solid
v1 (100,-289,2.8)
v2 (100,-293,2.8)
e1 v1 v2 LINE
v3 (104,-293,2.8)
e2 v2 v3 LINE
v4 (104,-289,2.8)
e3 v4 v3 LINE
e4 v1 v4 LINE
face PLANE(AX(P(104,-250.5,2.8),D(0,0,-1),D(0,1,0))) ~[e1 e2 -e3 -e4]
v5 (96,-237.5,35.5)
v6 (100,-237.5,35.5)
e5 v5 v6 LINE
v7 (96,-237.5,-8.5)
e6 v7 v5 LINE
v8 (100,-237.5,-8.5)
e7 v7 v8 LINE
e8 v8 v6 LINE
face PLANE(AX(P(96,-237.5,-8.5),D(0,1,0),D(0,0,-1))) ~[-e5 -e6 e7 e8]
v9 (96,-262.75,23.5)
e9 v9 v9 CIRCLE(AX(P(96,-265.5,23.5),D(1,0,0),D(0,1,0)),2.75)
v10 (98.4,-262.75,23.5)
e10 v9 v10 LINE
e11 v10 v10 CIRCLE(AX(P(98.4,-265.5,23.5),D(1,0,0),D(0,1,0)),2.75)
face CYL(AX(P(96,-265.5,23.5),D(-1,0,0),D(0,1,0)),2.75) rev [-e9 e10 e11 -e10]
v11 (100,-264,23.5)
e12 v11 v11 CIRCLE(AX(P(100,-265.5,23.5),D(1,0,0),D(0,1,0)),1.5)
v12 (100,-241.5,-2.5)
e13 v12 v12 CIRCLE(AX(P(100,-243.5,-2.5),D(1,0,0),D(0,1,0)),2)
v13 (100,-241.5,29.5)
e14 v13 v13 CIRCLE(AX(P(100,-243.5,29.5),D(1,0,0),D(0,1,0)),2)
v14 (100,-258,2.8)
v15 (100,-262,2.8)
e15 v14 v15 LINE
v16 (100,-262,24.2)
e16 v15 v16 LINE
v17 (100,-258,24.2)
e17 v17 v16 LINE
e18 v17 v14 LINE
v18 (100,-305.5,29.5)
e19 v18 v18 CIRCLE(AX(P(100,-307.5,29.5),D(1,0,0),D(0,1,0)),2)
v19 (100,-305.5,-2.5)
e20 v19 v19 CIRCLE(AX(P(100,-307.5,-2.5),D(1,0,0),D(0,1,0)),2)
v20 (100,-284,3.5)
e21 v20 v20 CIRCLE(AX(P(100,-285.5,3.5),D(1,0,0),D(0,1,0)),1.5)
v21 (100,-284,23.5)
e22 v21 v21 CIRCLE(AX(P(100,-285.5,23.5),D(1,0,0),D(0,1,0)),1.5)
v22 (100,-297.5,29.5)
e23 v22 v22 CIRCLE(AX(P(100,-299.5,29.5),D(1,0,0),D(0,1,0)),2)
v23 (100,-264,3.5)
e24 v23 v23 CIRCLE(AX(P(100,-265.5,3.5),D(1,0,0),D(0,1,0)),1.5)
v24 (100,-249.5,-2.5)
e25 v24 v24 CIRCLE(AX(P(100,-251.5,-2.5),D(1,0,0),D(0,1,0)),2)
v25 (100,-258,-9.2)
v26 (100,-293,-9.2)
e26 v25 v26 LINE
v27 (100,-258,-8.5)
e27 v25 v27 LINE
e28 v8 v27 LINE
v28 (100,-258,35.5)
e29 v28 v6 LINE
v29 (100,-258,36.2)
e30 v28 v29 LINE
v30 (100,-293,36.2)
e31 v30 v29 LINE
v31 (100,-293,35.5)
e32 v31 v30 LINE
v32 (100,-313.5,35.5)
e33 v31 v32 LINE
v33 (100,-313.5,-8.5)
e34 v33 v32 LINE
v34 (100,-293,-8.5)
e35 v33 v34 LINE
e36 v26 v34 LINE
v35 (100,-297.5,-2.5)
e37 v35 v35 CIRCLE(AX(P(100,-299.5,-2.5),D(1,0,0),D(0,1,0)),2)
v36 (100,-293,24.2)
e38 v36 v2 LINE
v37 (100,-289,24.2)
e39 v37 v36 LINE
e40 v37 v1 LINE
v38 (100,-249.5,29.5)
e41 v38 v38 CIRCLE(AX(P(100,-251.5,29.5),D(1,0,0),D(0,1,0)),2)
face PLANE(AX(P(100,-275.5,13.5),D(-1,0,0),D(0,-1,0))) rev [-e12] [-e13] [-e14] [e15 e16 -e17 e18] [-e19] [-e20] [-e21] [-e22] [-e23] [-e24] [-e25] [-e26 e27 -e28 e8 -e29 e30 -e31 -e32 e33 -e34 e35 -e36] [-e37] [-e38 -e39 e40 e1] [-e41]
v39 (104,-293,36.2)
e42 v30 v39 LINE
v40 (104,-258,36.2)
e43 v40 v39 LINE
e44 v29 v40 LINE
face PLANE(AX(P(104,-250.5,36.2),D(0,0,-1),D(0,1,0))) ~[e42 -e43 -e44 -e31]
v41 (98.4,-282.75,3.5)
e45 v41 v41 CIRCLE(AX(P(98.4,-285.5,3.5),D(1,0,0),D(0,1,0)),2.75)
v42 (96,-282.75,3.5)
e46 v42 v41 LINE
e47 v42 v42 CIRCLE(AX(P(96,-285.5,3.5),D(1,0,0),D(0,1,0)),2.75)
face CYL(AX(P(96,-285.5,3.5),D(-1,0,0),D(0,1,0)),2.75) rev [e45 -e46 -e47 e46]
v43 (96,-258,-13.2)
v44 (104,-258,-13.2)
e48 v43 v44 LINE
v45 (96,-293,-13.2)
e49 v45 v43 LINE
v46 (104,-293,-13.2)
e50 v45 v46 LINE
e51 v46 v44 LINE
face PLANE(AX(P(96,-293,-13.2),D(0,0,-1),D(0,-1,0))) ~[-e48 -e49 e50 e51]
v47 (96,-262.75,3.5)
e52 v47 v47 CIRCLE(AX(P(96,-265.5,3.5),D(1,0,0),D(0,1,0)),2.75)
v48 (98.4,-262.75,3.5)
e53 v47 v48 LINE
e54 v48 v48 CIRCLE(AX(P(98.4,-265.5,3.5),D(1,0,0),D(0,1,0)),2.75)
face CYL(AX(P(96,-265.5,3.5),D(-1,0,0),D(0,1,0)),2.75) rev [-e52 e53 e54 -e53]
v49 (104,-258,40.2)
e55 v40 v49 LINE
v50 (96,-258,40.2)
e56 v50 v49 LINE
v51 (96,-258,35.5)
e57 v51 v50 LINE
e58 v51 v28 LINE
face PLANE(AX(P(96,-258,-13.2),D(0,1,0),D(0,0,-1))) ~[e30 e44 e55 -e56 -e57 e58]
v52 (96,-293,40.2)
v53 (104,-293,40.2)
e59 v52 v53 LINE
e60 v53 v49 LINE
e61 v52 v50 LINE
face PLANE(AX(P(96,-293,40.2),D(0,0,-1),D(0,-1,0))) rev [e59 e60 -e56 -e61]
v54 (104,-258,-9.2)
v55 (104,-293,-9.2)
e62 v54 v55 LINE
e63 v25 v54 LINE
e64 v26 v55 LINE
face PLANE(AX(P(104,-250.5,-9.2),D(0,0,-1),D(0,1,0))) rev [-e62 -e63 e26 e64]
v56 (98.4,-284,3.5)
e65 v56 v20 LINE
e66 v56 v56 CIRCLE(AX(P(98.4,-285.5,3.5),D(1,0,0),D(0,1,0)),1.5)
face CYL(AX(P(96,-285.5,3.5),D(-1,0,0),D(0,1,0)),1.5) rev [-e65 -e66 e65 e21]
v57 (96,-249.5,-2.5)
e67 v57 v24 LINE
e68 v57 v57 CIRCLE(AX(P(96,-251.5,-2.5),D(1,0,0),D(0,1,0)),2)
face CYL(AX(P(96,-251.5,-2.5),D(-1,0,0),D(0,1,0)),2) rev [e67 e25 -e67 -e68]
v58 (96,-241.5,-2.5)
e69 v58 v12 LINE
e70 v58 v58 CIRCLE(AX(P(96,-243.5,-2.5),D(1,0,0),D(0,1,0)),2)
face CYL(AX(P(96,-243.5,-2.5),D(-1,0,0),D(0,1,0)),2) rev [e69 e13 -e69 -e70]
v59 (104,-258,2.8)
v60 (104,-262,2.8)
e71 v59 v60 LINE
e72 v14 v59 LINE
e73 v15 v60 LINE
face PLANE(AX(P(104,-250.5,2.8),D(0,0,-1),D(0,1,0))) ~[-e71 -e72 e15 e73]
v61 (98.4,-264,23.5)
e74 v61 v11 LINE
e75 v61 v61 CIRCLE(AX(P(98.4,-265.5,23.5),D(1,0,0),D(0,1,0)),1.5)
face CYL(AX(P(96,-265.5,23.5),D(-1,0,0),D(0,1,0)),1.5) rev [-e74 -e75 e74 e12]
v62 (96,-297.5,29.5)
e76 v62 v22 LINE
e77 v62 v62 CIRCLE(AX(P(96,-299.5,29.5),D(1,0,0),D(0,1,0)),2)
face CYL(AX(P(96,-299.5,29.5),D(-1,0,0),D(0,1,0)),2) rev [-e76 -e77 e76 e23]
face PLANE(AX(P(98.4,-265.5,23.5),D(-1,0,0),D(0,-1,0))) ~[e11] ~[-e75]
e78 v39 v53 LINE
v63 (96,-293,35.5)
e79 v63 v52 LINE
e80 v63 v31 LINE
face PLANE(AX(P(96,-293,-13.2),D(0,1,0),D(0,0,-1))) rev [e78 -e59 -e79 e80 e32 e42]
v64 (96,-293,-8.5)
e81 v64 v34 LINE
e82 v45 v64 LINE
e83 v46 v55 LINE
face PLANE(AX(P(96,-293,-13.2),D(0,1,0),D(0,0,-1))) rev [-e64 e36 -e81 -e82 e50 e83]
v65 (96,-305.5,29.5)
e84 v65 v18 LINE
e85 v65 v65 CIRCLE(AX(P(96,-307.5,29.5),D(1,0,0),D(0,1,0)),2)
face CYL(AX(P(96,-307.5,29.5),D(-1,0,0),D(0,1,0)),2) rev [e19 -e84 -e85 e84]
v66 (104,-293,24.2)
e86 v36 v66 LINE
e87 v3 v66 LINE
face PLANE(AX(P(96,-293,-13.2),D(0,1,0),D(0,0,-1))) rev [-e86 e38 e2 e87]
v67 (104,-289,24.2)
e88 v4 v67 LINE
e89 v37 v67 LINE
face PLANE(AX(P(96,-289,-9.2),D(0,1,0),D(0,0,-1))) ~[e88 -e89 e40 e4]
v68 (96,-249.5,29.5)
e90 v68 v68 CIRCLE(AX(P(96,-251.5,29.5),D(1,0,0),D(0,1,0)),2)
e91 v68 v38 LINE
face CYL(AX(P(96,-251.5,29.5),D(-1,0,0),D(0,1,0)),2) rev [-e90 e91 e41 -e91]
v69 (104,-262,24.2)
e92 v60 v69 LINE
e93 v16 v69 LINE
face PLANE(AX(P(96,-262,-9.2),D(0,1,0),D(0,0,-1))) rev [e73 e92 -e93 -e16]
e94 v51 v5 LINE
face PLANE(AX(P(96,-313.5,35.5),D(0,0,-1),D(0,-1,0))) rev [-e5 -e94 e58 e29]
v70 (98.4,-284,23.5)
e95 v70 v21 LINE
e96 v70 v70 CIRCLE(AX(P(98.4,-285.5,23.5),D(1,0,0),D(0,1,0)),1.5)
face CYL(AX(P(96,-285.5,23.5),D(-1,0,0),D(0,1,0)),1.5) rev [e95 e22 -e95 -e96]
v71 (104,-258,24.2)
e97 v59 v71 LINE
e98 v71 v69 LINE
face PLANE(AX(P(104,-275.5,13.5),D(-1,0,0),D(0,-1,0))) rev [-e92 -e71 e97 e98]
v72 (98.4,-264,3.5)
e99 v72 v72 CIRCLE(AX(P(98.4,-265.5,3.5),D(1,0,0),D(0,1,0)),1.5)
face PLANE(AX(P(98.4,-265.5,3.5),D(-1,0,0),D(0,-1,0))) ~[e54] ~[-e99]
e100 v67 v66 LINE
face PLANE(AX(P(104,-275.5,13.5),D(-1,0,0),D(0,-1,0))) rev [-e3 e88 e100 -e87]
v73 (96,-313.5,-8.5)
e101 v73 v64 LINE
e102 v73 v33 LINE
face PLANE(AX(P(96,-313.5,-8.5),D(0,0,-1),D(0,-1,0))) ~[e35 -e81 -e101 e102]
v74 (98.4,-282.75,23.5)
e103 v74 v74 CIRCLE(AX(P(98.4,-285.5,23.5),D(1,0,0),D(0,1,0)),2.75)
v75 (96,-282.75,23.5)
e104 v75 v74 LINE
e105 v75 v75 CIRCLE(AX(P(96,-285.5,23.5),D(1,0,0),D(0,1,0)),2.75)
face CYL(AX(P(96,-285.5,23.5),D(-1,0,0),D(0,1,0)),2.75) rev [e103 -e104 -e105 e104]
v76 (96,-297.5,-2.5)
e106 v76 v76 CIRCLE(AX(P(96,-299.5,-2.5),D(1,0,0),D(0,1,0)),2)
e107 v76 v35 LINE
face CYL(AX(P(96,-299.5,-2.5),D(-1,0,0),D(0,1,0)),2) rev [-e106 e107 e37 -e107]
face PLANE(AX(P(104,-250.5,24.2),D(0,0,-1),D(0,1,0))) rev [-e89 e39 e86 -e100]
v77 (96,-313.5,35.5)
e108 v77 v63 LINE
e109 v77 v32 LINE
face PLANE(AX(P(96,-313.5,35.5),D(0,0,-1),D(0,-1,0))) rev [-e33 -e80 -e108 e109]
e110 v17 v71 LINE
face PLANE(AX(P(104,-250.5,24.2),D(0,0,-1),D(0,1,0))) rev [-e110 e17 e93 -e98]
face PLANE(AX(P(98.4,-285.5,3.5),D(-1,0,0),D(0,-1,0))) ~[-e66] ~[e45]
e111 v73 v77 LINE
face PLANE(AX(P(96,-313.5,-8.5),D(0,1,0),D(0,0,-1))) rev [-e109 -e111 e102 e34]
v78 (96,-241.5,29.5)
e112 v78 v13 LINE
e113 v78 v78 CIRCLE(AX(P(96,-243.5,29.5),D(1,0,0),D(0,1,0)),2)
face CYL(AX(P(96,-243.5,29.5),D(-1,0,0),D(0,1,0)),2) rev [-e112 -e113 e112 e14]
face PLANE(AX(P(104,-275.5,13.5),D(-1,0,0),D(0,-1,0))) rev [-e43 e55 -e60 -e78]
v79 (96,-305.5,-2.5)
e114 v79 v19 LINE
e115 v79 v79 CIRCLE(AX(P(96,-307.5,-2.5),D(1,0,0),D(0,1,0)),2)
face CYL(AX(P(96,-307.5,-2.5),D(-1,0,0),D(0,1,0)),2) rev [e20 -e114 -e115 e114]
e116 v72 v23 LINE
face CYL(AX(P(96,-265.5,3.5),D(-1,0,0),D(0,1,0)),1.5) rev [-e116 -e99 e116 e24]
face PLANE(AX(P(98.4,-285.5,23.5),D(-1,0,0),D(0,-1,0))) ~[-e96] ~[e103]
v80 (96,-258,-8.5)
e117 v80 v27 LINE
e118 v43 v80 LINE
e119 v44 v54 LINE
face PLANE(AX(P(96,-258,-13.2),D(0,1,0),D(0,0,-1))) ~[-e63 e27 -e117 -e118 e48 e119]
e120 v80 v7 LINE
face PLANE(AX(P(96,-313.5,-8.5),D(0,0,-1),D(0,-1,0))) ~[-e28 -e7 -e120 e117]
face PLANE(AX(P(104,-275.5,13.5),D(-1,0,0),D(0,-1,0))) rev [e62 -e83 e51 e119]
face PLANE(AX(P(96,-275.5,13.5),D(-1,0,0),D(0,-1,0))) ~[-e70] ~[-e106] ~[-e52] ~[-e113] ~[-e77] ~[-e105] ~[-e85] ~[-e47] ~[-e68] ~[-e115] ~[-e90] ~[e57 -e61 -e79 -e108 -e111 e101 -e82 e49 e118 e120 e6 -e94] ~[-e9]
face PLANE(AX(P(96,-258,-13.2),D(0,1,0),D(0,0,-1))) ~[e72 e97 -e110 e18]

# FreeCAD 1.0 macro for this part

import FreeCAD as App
import Part
import Sketcher

V = App.Vector

doc = App.newDocument("Part")
params = doc.addObject("Spreadsheet::Sheet", "Params")
for row, (alias, value) in enumerate([
    ("sketch1_width", "4 mm"),
    ("sketch1_height", "27 mm"),
    ("pad1_length", "45.4 mm"),
    ("sketch2_diameter", "3 mm"),
    ("pocket1_length", "5 mm"),
    ("sketch3_diameter", "5.5 mm"),
    ("pocket2_length", "2.4 mm"),
    ("sketch4_width", "35 mm"),
    ("sketch4_width2", "27 mm"),
    ("sketch4_height", "53.4 mm"),
    ("sketch4_height2", "45.4 mm"),
    ("pad2_length", "8 mm"),
    ("sketch5_diameter", "4 mm"),
    ("sketch5_width", "76 mm"),
    ("sketch5_width2", "30 mm"),
    ("sketch5_height", "44 mm"),
    ("pad3_length", "4 mm"),
    ("sketch6_width", "50 mm"),
    ("sketch6_height", "12 mm"),
    ("pocket3_length", "4 mm"),
], start=1):
    params.set(f"A{row}", alias)
    params.set(f"B{row}", "=" + value)
    params.setAlias(f"B{row}", alias)

body = doc.addObject("PartDesign::Body", "Body")

# Sketch on XY plane
sketch1 = body.newObject("Sketcher::SketchObject", "Sketch")
sketch1.AttachmentSupport = (doc.getObject("XY_Plane"), [""])
sketch1.MapMode = "FlatFace"
sketch1.addGeometry([
    Part.LineSegment(V(-2, 13.5, 0), V(-2, -13.5, 0)),
    Part.LineSegment(V(-2, -13.5, 0), V(2, -13.5, 0)),
    Part.LineSegment(V(2, -13.5, 0), V(2, 13.5, 0)),
    Part.LineSegment(V(2, 13.5, 0), V(-2, 13.5, 0)),
], False)
sketch1.addConstraint([
    Sketcher.Constraint("Coincident", 0, 2, 1, 1),
    Sketcher.Constraint("Coincident", 1, 2, 2, 1),
    Sketcher.Constraint("Coincident", 2, 2, 3, 1),
    Sketcher.Constraint("Coincident", 3, 2, 0, 1),
    Sketcher.Constraint("Vertical", 0),
    Sketcher.Constraint("Horizontal", 1),
    Sketcher.Constraint("Vertical", 2),
    Sketcher.Constraint("Horizontal", 3),
    Sketcher.Constraint("Symmetric", 0, 2, 2, 2, -1, 1),
    Sketcher.Constraint("DistanceX", 1, 1, 1, 2, 4.0),
    Sketcher.Constraint("DistanceY", 0, 2, 0, 1, 27.0),
])
sketch1.setExpression("Constraints[9]", "Params.sketch1_width")
sketch1.setExpression("Constraints[10]", "Params.sketch1_height")
pad1 = body.newObject("PartDesign::Pad", "Pad")
pad1.Profile = sketch1
pad1.setExpression("Length", "Params.pad1_length")

# Sketch on YZ plane
sketch2 = body.newObject("Sketcher::SketchObject", "Sketch001")
sketch2.AttachmentSupport = (doc.getObject("YZ_Plane"), [""])
sketch2.MapMode = "FlatFace"
sketch2.AttachmentOffset = App.Placement(V(0, 0, 2), App.Rotation())
sketch2.addGeometry([
    Part.Circle(V(-10, 32.7, 0), V(0, 0, 1), 1.5),
    Part.Circle(V(10, 32.7, 0), V(0, 0, 1), 1.5),
    Part.Circle(V(10, 12.7, 0), V(0, 0, 1), 1.5),
    Part.Circle(V(-10, 12.7, 0), V(0, 0, 1), 1.5),
], False)
sketch2.addConstraint([
    Sketcher.Constraint("Equal", 0, 1),
    Sketcher.Constraint("Equal", 1, 2),
    Sketcher.Constraint("Equal", 2, 3),
    Sketcher.Constraint("Symmetric", 0, 3, 1, 3, -2),
    Sketcher.Constraint("Symmetric", 2, 3, 3, 3, -2),
    Sketcher.Constraint("Vertical", 1, 3, 2, 3),
    Sketcher.Constraint("Diameter", 0, 3.0),
    Sketcher.Constraint("DistanceX", 0, 3, -1, 1, 10.0),
    Sketcher.Constraint("DistanceY", 2, 3, 1, 3, 20.0),
    Sketcher.Constraint("DistanceY", -1, 1, 0, 3, 32.7),
])
sketch2.setExpression("Constraints[6]", "Params.sketch2_diameter")
pocket1 = body.newObject("PartDesign::Pocket", "Pocket")
pocket1.Profile = sketch2
pocket1.setExpression("Length", "Params.pocket1_length")

# Sketch on YZ plane
sketch3 = body.newObject("Sketcher::SketchObject", "Sketch002")
sketch3.AttachmentSupport = (doc.getObject("YZ_Plane"), [""])
sketch3.MapMode = "FlatFace"
sketch3.AttachmentOffset = App.Placement(V(0, 0, 2), App.Rotation())
sketch3.addGeometry([
    Part.Circle(V(-10, 32.7, 0), V(0, 0, 1), 2.75),
    Part.Circle(V(10, 32.7, 0), V(0, 0, 1), 2.75),
    Part.Circle(V(10, 12.7, 0), V(0, 0, 1), 2.75),
    Part.Circle(V(-10, 12.7, 0), V(0, 0, 1), 2.75),
], False)
sketch3.addConstraint([
    Sketcher.Constraint("Equal", 0, 1),
    Sketcher.Constraint("Equal", 1, 2),
    Sketcher.Constraint("Equal", 2, 3),
    Sketcher.Constraint("Symmetric", 0, 3, 1, 3, -2),
    Sketcher.Constraint("Symmetric", 2, 3, 3, 3, -2),
    Sketcher.Constraint("Vertical", 1, 3, 2, 3),
    Sketcher.Constraint("Diameter", 0, 5.5),
    Sketcher.Constraint("DistanceX", 0, 3, -1, 1, 10.0),
    Sketcher.Constraint("DistanceY", 2, 3, 1, 3, 20.0),
    Sketcher.Constraint("DistanceY", -1, 1, 0, 3, 32.7),
])
sketch3.setExpression("Constraints[6]", "Params.sketch3_diameter")
pocket2 = body.newObject("PartDesign::Pocket", "Pocket001")
pocket2.Profile = sketch3
pocket2.setExpression("Length", "Params.pocket2_length")

# Sketch on YZ plane
sketch4 = body.newObject("Sketcher::SketchObject", "Sketch003")
sketch4.AttachmentSupport = (doc.getObject("YZ_Plane"), [""])
sketch4.MapMode = "FlatFace"
sketch4.AttachmentOffset = App.Placement(V(0, 0, 2), App.Rotation())
sketch4.addGeometry([
    Part.LineSegment(V(-17.5, 49.4, 0), V(-17.5, -4, 0)),  # 0
    Part.LineSegment(V(-17.5, -4, 0), V(17.5, -4, 0)),  # 1
    Part.LineSegment(V(17.5, -4, 0), V(17.5, 49.4, 0)),  # 2
    Part.LineSegment(V(17.5, 49.4, 0), V(-17.5, 49.4, 0)),  # 3
    Part.LineSegment(V(13.5, 0, 0), V(-13.5, 0, 0)),  # 4
    Part.LineSegment(V(-13.5, 0, 0), V(-13.5, 45.4, 0)),  # 5
    Part.LineSegment(V(-13.5, 45.4, 0), V(13.5, 45.4, 0)),  # 6
    Part.LineSegment(V(13.5, 45.4, 0), V(13.5, 0, 0)),  # 7
], False)
sketch4.addConstraint([
    Sketcher.Constraint("Coincident", 0, 2, 1, 1),
    Sketcher.Constraint("Coincident", 1, 2, 2, 1),
    Sketcher.Constraint("Coincident", 2, 2, 3, 1),
    Sketcher.Constraint("Coincident", 3, 2, 0, 1),
    Sketcher.Constraint("Coincident", 4, 2, 5, 1),
    Sketcher.Constraint("Coincident", 5, 2, 6, 1),
    Sketcher.Constraint("Coincident", 6, 2, 7, 1),
    Sketcher.Constraint("Coincident", 7, 2, 4, 1),
    Sketcher.Constraint("Vertical", 0),
    Sketcher.Constraint("Horizontal", 1),
    Sketcher.Constraint("Vertical", 2),
    Sketcher.Constraint("Horizontal", 3),
    Sketcher.Constraint("Horizontal", 4),
    Sketcher.Constraint("Vertical", 5),
    Sketcher.Constraint("Horizontal", 6),
    Sketcher.Constraint("Vertical", 7),
    Sketcher.Constraint("Symmetric", 4, 2, 7, 2, -1, 1),
    Sketcher.Constraint("DistanceX", 1, 1, 1, 2, 35.0),
    Sketcher.Constraint("DistanceX", 4, 2, 4, 1, 27.0),
    Sketcher.Constraint("DistanceY", 0, 2, 0, 1, 53.4),
    Sketcher.Constraint("DistanceY", 5, 1, 5, 2, 45.4),
    Sketcher.Constraint("DistanceY", 0, 2, -1, 1, 4.0),
    Sketcher.Constraint("DistanceX", 0, 2, 4, 2, 4.0),
])
sketch4.setExpression("Constraints[17]", "Params.sketch4_width")
sketch4.setExpression("Constraints[18]", "Params.sketch4_width2")
sketch4.setExpression("Constraints[19]", "Params.sketch4_height")
sketch4.setExpression("Constraints[20]", "Params.sketch4_height2")
pad2 = body.newObject("PartDesign::Pad", "Pad001")
pad2.Profile = sketch4
pad2.setExpression("Length", "Params.pad2_length")
pad2.Reversed = True

# Sketch on YZ plane
sketch5 = body.newObject("Sketcher::SketchObject", "Sketch004")
sketch5.AttachmentSupport = (doc.getObject("YZ_Plane"), [""])
sketch5.MapMode = "FlatFace"
sketch5.AttachmentOffset = App.Placement(V(0, 0, 2), App.Rotation())
sketch5.addGeometry([
    Part.LineSegment(V(-38, 44.7, 0), V(-38, 0.7, 0)),  # 0
    Part.LineSegment(V(-38, 0.7, 0), V(38, 0.7, 0)),  # 1
    Part.LineSegment(V(38, 0.7, 0), V(38, 44.7, 0)),  # 2
    Part.LineSegment(V(38, 44.7, 0), V(-38, 44.7, 0)),  # 3
    Part.Circle(V(-32, 6.7, 0), V(0, 0, 1), 2),  # 4
    Part.Circle(V(-24, 6.7, 0), V(0, 0, 1), 2),  # 5
    Part.Circle(V(24, 6.7, 0), V(0, 0, 1), 2),  # 6
    Part.Circle(V(32, 6.7, 0), V(0, 0, 1), 2),  # 7
    Part.Circle(V(-32, 38.7, 0), V(0, 0, 1), 2),  # 8
    Part.Circle(V(-24, 38.7, 0), V(0, 0, 1), 2),  # 9
    Part.LineSegment(V(15, 7.7, 0), V(-15, 7.7, 0)),  # 10
    Part.LineSegment(V(-15, 7.7, 0), V(-15, 37.7, 0)),  # 11
    Part.LineSegment(V(-15, 37.7, 0), V(15, 37.7, 0)),  # 12
    Part.LineSegment(V(15, 37.7, 0), V(15, 7.7, 0)),  # 13
    Part.Circle(V(24, 38.7, 0), V(0, 0, 1), 2),  # 14
    Part.Circle(V(32, 38.7, 0), V(0, 0, 1), 2),  # 15
], False)
sketch5.addConstraint([
    Sketcher.Constraint("Coincident", 0, 2, 1, 1),
    Sketcher.Constraint("Coincident", 1, 2, 2, 1),
    Sketcher.Constraint("Coincident", 2, 2, 3, 1),
    Sketcher.Constraint("Coincident", 3, 2, 0, 1),
    Sketcher.Constraint("Coincident", 10, 2, 11, 1),
    Sketcher.Constraint("Coincident", 11, 2, 12, 1),
    Sketcher.Constraint("Coincident", 12, 2, 13, 1),
    Sketcher.Constraint("Coincident", 13, 2, 10, 1),
    Sketcher.Constraint("Vertical", 0),
    Sketcher.Constraint("Horizontal", 1),
    Sketcher.Constraint("Vertical", 2),
    Sketcher.Constraint("Horizontal", 3),
    Sketcher.Constraint("Horizontal", 10),
    Sketcher.Constraint("Vertical", 11),
    Sketcher.Constraint("Horizontal", 12),
    Sketcher.Constraint("Vertical", 13),
    Sketcher.Constraint("Equal", 4, 5),
    Sketcher.Constraint("Equal", 5, 6),
    Sketcher.Constraint("Equal", 6, 7),
    Sketcher.Constraint("Equal", 7, 8),
    Sketcher.Constraint("Equal", 8, 9),
    Sketcher.Constraint("Equal", 9, 14),
    Sketcher.Constraint("Equal", 14, 15),
    Sketcher.Constraint("Symmetric", 5, 3, 6, 3, -2),
    Sketcher.Constraint("Symmetric", 4, 3, 7, 3, -2),
    Sketcher.Constraint("Symmetric", 9, 3, 14, 3, -2),
    Sketcher.Constraint("Symmetric", 8, 3, 15, 3, -2),
    Sketcher.Constraint("Horizontal", 4, 3, 5, 3),
    Sketcher.Constraint("Horizontal", 8, 3, 9, 3),
    Sketcher.Constraint("Vertical", 4, 3, 8, 3),
    Sketcher.Constraint("Vertical", 5, 3, 9, 3),
    Sketcher.Constraint("Equal", 12, 11),
    Sketcher.Constraint("Diameter", 4, 4.0),
    Sketcher.Constraint("DistanceX", 1, 1, 1, 2, 76.0),
    Sketcher.Constraint("DistanceX", 10, 2, 10, 1, 30.0),
    Sketcher.Constraint("DistanceY", 0, 2, 0, 1, 44.0),
    Sketcher.Constraint("DistanceX", 4, 3, -1, 1, 32.0),
    Sketcher.Constraint("DistanceX", 5, 3, -1, 1, 24.0),
    Sketcher.Constraint("DistanceX", 0, 2, -1, 1, 38.0),
    Sketcher.Constraint("DistanceX", 10, 2, -1, 1, 15.0),
    Sketcher.Constraint("DistanceY", 4, 3, 8, 3, 32.0),
    Sketcher.Constraint("DistanceY", 0, 2, 4, 3, 6.0),
    Sketcher.Constraint("DistanceY", 5, 3, 10, 2, 1.0),
    Sketcher.Constraint("DistanceY", -1, 1, 4, 3, 6.7),
])
sketch5.setExpression("Constraints[32]", "Params.sketch5_diameter")
sketch5.setExpression("Constraints[33]", "Params.sketch5_width")
sketch5.setExpression("Constraints[34]", "Params.sketch5_width2")
sketch5.setExpression("Constraints[35]", "Params.sketch5_height")
pad3 = body.newObject("PartDesign::Pad", "Pad002")
pad3.Profile = sketch5
pad3.setExpression("Length", "Params.pad3_length")
pad3.Reversed = True

# Sketch on YZ plane
sketch6 = body.newObject("Sketcher::SketchObject", "Sketch005")
sketch6.AttachmentSupport = (doc.getObject("YZ_Plane"), [""])
sketch6.MapMode = "FlatFace"
sketch6.AttachmentOffset = App.Placement(V(0, 0, -6), App.Rotation())
sketch6.addGeometry([
    Part.LineSegment(V(25, 45.4, 0), V(25, 33.4, 0)),  # 0
    Part.LineSegment(V(25, 33.4, 0), V(-25, 33.4, 0)),  # 1
    Part.LineSegment(V(-25, 33.4, 0), V(-25, 45.4, 0)),  # 2
    Part.LineSegment(V(-25, 45.4, 0), V(25, 45.4, 0)),  # 3
    Part.LineSegment(V(25, 12, 0), V(25, 0, 0)),  # 4
    Part.LineSegment(V(25, 0, 0), V(-25, 0, 0)),  # 5
    Part.LineSegment(V(-25, 0, 0), V(-25, 12, 0)),  # 6
    Part.LineSegment(V(-25, 12, 0), V(25, 12, 0)),  # 7
], False)
sketch6.addConstraint([
    Sketcher.Constraint("Coincident", 0, 2, 1, 1),
    Sketcher.Constraint("Coincident", 1, 2, 2, 1),
    Sketcher.Constraint("Coincident", 2, 2, 3, 1),
    Sketcher.Constraint("Coincident", 3, 2, 0, 1),
    Sketcher.Constraint("Coincident", 4, 2, 5, 1),
    Sketcher.Constraint("Coincident", 5, 2, 6, 1),
    Sketcher.Constraint("Coincident", 6, 2, 7, 1),
    Sketcher.Constraint("Coincident", 7, 2, 4, 1),
    Sketcher.Constraint("Vertical", 0),
    Sketcher.Constraint("Horizontal", 1),
    Sketcher.Constraint("Vertical", 2),
    Sketcher.Constraint("Horizontal", 3),
    Sketcher.Constraint("Vertical", 4),
    Sketcher.Constraint("Horizontal", 5),
    Sketcher.Constraint("Vertical", 6),
    Sketcher.Constraint("Horizontal", 7),
    Sketcher.Constraint("Symmetric", 4, 2, 5, 2, -1, 1),
    Sketcher.Constraint("Vertical", 3, 2, 4, 2),
    Sketcher.Constraint("Vertical", 2, 2, 5, 2),
    Sketcher.Constraint("Equal", 2, 4),
    Sketcher.Constraint("DistanceX", 1, 2, 1, 1, 50.0),
    Sketcher.Constraint("DistanceY", 0, 2, 0, 1, 12.0),
    Sketcher.Constraint("DistanceY", -1, 1, 0, 2, 33.4),
])
sketch6.setExpression("Constraints[20]", "Params.sketch6_width")
sketch6.setExpression("Constraints[21]", "Params.sketch6_height")
pocket3 = body.newObject("PartDesign::Pocket", "Pocket002")
pocket3.Profile = sketch6
pocket3.setExpression("Length", "Params.pocket3_length")
pocket3.Reversed = True
body2 = doc.addObject("PartDesign::Body", "Body001")
doc.recompute()

body.Placement = App.Placement(V(-98, -275.5, -9.2), App.Rotation(V(0, 0, 1), 0))
boolean = body2.newObject("PartDesign::Boolean", "Boolean")
boolean.Type = "Fuse"
boolean.addObjects([body])
body3 = doc.addObject("PartDesign::Body", "Body002")
doc.recompute()

mirroring = doc.addObject("Part::Mirroring", "Mirroring")
mirroring.Source = body2
mirroring.Base = V(0, 0, 0)
mirroring.Normal = V(1, 0, 0)
body3.BaseFeature = mirroring
doc.recompute()
body2.Visibility = False
mirroring.Visibility = False

doc.recompute()
